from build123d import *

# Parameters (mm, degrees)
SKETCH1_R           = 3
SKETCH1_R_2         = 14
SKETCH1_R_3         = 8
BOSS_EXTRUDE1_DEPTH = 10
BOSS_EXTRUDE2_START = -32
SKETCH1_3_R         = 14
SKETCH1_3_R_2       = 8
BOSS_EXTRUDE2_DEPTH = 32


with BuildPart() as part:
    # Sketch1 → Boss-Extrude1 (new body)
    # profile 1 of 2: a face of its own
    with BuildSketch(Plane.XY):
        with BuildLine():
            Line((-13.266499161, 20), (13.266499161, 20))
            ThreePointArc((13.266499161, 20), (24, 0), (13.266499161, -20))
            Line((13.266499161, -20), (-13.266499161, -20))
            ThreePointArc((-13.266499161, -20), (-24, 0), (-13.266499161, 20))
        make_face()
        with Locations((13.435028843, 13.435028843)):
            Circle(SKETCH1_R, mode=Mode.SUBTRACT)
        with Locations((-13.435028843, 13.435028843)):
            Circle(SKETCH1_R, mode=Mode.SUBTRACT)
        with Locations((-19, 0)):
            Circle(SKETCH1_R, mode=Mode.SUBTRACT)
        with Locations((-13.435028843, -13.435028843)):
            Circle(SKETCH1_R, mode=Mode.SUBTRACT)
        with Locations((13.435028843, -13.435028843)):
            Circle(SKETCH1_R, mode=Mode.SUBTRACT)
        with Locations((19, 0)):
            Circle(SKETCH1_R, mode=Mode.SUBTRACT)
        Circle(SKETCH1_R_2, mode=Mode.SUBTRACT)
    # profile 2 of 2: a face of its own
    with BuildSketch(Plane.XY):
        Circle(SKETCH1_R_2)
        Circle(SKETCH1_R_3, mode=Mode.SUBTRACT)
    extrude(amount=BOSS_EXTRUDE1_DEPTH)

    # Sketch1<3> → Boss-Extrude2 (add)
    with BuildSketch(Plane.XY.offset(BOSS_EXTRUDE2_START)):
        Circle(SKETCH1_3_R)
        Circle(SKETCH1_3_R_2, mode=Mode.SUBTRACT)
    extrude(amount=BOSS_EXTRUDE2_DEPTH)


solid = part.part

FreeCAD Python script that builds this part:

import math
import FreeCAD as App
import Part
import Sketcher
Q = App.Units.Quantity

doc = App.newDocument("Part")
body = doc.addObject("PartDesign::Body", "Body")

sketch1 = doc.addObject("Sketcher::SketchObject", "Sketch")
body.addObject(sketch1)
sketch1.AttachmentSupport = (doc.XY_Plane, [""])
sketch1.MapMode = "FlatFace"
sketch1.addGeometry([
    Part.LineSegment(App.Vector(13.3, 20, 0), App.Vector(-13.3, 20, 0)),
    Part.ArcOfCircle(Part.Circle(App.Vector(0, 0, 0), App.Vector(0, 0, 1), 24), math.radians(124), math.radians(236)),
    Part.LineSegment(App.Vector(-13.3, -20, 0), App.Vector(13.3, -20, 0)),
    Part.ArcOfCircle(Part.Circle(App.Vector(0, 0, 0), App.Vector(0, 0, 1), 24), math.radians(-56), math.radians(56)),
    Part.Circle(App.Vector(13.4, -13.4, 0), App.Vector(0, 0, 1), 3),
    Part.Circle(App.Vector(-13.4, -13.4, 0), App.Vector(0, 0, 1), 3),
    Part.Circle(App.Vector(19, 0, 0), App.Vector(0, 0, 1), 3),
    Part.Circle(App.Vector(13.4, 13.4, 0), App.Vector(0, 0, 1), 3),
    Part.Circle(App.Vector(-19, 0, 0), App.Vector(0, 0, 1), 3),
    Part.Circle(App.Vector(-13.4, 13.4, 0), App.Vector(0, 0, 1), 3),
    Part.Circle(App.Vector(0, 0, 0), App.Vector(0, 0, 1), 8),
], False)
sketch1.addConstraint([
    Sketcher.Constraint("Coincident", 0, 2, 1, 1),
    Sketcher.Constraint("Coincident", 1, 2, 2, 1),
    Sketcher.Constraint("Coincident", 2, 2, 3, 1),
    Sketcher.Constraint("Coincident", 3, 2, 0, 1),
    Sketcher.Constraint("Horizontal", 0),
    Sketcher.Constraint("Horizontal", 2),
    Sketcher.Constraint("Coincident", 1, 3, -1, 1),
    Sketcher.Constraint("Coincident", 3, 3, -1, 1),
    Sketcher.Constraint("Coincident", 10, 3, -1, 1),
    Sketcher.Constraint("Equal", 1, 3),
    Sketcher.Constraint("Equal", 4, 5),
    Sketcher.Constraint("Equal", 5, 6),
    Sketcher.Constraint("Equal", 6, 7),
    Sketcher.Constraint("Equal", 7, 8),
    Sketcher.Constraint("Equal", 8, 9),
    Sketcher.Constraint("Symmetric", 5, 3, 7, 3, -1, 1),
    Sketcher.Constraint("Symmetric", 6, 3, 8, 3, -1, 1),
    Sketcher.Constraint("Symmetric", 4, 3, 9, 3, -1, 1),
    Sketcher.Constraint("Symmetric", 4, 3, 5, 3, -2),
    Sketcher.Constraint("PointOnObject", 6, 3, -1),
    Sketcher.Constraint("Vertical", 0, 2, 1, 2),
    Sketcher.Constraint("Diameter", 4, Q("6 mm")),
    Sketcher.Constraint("Diameter", 10, Q("16 mm")),
    Sketcher.Constraint("Radius", 1, Q("24 mm")),
    Sketcher.Constraint("DistanceX", -1, 1, 6, 3, Q("19 mm")),
    Sketcher.Constraint("DistanceY", -1, 1, 0, 2, Q("20 mm")),
    Sketcher.Constraint("DistanceX", -1, 1, 4, 3, Q("13.435029 mm")),
    Sketcher.Constraint("DistanceY", 4, 3, -1, 1, Q("13.435029 mm")),
])
pad1 = doc.addObject("PartDesign::Pad", "Pad")
body.addObject(pad1)
pad1.Profile = sketch1
pad1.Length = 10

sketch2 = doc.addObject("Sketcher::SketchObject", "Sketch001")
body.addObject(sketch2)
sketch2.AttachmentSupport = (doc.XY_Plane, [""])
sketch2.MapMode = "FlatFace"
sketch2.AttachmentOffset = App.Placement(App.Vector(0, 0, -32), App.Rotation())
sketch2.addGeometry([
    Part.Circle(App.Vector(0, 0, 0), App.Vector(0, 0, 1), 14),
    Part.Circle(App.Vector(0, 0, 0), App.Vector(0, 0, 1), 8),
], False)
sketch2.addConstraint([
    Sketcher.Constraint("Coincident", 0, 3, -1, 1),
    Sketcher.Constraint("Coincident", 1, 3, -1, 1),
    Sketcher.Constraint("Diameter", 0, Q("28 mm")),
    Sketcher.Constraint("Diameter", 1, Q("16 mm")),
])
pad2 = doc.addObject("PartDesign::Pad", "Pad001")
body.addObject(pad2)
pad2.Profile = sketch2
pad2.Length = 32

doc.recompute()
